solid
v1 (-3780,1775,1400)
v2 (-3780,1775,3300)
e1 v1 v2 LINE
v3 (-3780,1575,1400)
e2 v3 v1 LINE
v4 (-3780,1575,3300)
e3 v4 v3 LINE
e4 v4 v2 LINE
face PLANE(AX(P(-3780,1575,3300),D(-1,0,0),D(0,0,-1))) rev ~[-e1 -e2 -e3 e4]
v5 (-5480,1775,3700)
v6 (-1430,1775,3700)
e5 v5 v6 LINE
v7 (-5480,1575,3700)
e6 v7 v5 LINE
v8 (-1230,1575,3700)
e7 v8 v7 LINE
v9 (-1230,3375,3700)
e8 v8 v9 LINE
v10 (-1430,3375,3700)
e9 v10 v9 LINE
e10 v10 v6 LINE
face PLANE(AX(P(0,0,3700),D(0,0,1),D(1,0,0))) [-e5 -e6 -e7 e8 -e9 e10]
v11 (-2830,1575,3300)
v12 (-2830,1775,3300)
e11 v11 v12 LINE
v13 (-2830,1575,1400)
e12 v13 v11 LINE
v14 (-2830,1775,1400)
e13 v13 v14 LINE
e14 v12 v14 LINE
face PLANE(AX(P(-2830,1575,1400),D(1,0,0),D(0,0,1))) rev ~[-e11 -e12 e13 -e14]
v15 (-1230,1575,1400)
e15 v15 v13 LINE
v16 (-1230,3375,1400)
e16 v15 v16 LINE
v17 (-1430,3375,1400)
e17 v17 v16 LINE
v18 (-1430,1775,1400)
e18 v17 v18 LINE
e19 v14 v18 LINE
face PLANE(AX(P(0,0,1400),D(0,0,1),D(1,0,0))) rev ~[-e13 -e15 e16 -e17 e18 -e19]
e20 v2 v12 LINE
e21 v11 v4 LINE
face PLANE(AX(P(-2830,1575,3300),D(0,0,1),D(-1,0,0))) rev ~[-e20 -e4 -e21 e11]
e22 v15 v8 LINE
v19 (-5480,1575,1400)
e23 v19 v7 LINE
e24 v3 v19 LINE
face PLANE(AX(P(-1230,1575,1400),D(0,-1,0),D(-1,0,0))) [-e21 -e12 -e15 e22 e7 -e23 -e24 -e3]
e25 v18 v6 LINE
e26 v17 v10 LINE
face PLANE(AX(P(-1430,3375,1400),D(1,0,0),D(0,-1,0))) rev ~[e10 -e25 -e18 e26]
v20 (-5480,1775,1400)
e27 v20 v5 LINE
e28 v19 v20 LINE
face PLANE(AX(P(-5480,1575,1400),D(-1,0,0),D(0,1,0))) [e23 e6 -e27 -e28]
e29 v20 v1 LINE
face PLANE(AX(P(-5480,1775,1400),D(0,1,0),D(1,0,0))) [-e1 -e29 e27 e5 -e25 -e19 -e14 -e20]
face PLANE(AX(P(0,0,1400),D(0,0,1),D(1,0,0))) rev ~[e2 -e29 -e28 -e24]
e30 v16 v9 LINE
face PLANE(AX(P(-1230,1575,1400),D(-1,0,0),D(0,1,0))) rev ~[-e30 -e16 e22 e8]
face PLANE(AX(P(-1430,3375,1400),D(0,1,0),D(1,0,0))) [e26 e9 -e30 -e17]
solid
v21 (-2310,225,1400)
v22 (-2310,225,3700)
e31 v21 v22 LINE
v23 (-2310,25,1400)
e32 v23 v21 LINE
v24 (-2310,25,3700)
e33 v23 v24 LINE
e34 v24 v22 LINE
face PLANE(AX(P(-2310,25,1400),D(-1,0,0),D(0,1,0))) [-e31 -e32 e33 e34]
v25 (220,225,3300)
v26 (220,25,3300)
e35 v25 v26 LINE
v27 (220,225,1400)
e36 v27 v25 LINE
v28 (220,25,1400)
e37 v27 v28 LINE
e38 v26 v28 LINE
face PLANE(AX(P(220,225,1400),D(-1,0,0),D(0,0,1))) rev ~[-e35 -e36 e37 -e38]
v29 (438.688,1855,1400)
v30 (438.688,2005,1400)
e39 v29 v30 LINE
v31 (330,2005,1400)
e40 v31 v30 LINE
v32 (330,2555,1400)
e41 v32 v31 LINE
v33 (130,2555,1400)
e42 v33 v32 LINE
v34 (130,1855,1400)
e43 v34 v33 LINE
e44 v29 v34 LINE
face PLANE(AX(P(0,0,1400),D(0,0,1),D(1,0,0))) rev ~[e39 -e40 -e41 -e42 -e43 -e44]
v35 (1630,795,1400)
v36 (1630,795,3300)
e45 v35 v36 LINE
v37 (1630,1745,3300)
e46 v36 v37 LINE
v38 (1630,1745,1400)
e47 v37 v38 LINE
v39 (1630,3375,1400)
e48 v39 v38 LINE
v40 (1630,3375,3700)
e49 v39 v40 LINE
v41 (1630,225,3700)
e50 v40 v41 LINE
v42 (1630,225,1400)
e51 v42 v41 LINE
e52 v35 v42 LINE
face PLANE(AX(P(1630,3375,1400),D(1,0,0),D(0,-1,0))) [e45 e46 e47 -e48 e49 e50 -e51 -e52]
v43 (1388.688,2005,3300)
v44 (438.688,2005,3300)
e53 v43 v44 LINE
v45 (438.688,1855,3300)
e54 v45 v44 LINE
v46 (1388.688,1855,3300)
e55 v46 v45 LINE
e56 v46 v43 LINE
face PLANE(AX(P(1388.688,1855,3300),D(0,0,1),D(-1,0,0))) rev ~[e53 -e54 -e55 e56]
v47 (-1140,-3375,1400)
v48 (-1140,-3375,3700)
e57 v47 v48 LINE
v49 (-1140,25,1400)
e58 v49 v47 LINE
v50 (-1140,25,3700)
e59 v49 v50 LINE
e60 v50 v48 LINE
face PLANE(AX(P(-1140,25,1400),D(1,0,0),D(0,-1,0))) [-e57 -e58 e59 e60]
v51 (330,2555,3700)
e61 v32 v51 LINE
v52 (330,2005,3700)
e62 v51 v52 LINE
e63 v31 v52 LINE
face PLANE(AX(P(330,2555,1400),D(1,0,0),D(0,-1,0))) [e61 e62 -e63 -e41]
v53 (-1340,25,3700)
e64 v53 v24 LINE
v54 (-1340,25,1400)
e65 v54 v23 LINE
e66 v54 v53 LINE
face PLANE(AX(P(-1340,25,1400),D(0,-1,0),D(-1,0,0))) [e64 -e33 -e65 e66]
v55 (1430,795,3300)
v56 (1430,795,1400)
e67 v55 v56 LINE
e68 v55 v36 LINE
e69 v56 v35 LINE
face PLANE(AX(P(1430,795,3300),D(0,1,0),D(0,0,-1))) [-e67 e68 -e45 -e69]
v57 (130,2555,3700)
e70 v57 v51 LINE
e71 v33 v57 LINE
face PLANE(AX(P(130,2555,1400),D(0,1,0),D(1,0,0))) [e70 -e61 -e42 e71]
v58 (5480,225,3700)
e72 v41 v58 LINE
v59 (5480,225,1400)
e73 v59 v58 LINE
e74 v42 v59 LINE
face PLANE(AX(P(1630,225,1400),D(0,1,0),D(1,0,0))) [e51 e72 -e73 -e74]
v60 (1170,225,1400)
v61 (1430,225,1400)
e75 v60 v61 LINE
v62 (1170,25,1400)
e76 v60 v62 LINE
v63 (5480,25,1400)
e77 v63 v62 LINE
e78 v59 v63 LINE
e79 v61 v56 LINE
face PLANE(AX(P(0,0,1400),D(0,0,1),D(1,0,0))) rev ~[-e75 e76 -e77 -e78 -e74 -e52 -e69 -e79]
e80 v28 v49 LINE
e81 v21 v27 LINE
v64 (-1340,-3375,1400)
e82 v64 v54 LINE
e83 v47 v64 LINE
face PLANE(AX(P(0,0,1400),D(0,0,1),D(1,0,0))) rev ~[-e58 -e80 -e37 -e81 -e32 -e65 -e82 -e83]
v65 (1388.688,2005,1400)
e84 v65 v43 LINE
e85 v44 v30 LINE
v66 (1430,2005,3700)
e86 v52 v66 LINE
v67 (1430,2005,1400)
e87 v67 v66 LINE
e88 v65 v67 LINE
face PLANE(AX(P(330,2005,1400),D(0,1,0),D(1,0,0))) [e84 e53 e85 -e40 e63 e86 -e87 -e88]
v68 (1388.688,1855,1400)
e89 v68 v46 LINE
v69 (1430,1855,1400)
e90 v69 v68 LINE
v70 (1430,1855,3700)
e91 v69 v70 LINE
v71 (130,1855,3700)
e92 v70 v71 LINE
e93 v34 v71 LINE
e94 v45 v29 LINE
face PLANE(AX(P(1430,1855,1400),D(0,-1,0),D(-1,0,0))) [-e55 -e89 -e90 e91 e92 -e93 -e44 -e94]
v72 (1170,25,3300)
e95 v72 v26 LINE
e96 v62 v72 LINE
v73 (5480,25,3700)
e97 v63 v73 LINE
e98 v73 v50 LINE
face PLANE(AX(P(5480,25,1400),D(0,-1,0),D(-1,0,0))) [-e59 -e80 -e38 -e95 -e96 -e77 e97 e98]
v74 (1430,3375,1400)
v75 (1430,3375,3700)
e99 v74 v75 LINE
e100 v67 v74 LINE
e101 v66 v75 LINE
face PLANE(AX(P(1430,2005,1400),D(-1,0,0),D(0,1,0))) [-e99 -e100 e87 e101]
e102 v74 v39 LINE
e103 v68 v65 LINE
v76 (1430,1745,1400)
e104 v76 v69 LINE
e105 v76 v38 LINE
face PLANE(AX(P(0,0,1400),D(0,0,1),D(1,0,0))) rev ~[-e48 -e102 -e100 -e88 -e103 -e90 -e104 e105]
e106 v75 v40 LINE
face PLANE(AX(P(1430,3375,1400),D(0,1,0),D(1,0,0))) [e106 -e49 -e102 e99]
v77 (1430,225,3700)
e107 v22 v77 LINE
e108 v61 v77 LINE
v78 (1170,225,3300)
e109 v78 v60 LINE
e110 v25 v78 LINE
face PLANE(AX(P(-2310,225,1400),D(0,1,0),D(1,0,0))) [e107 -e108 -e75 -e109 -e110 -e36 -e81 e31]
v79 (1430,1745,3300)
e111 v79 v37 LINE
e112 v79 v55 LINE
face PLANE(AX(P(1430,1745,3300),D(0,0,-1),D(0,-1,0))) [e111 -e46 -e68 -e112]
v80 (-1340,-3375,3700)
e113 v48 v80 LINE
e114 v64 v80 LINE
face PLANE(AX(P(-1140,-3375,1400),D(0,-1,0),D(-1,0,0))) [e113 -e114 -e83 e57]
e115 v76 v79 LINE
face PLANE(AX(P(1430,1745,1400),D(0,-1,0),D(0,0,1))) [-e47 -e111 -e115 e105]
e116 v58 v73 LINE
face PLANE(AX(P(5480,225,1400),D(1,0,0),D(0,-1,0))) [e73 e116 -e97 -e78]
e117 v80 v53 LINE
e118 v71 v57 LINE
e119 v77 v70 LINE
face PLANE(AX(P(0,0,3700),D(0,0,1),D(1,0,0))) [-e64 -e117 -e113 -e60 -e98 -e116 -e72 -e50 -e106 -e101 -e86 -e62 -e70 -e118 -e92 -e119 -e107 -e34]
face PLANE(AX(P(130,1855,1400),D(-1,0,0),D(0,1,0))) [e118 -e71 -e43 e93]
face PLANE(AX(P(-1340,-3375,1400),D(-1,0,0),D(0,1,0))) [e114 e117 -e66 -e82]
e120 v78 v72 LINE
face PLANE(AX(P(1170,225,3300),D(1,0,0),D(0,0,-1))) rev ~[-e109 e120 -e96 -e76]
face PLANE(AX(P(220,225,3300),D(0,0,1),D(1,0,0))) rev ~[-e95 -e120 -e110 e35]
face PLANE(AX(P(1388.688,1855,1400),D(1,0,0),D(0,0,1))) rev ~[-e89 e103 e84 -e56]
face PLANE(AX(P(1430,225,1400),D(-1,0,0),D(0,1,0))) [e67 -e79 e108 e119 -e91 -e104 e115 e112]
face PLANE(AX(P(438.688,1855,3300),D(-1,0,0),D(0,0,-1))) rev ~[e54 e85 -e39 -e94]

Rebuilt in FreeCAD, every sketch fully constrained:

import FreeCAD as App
import Part
import Sketcher
from FreeCAD import Vector
Q = App.Units.Quantity

doc = App.newDocument("Part")
params = doc.addObject("Spreadsheet::Sheet", "Params")
for row, (alias, value) in enumerate([
    ("sketch1_width", "3850 mm"),
    ("sketch1_width2", "200 mm"),
    ("sketch1_width3", "1300 mm"),
    ("sketch1_width4", "970 mm"),
    ("sketch1_width5", "6620 mm"),
    ("pad1_length", "2300 mm"),
    ("sketch2_width", "950 mm"),
    ("sketch2_height", "1900 mm"),
    ("pocket1_length", "879.25 mm"),
    ("sketch3_width", "950 mm"),
    ("sketch3_height", "1900 mm"),
    ("pocket2_length", "879.25 mm"),
    ("sketch4_width", "950 mm"),
    ("sketch4_height", "1900 mm"),
    ("pocket3_length", "879.25 mm"),
    ("sketch5_width", "950 mm"),
    ("sketch5_height", "1900 mm"),
    ("pocket4_length", "150 mm"),
], start=1):
    params.set(f"A{row}", alias)
    params.set(f"B{row}", "=" + value)
    params.setAlias(f"B{row}", alias)

body = doc.addObject("PartDesign::Body", "Body")
body.AllowCompound = True

# Sketch on XY plane
sketch1 = doc.addObject("Sketcher::SketchObject", "Sketch")
body.addObject(sketch1)
sketch1.AttachmentSupport = (doc.XY_Plane, [""])
sketch1.MapMode = "FlatFace"
sketch1.AttachmentOffset = App.Placement(Vector(0, 0, 1400), App.Rotation())
sketch1.addGeometry([
    Part.LineSegment(Vector(5480, 25, 0), Vector(5480, 225, 0)),  # 0
    Part.LineSegment(Vector(5480, 225, 0), Vector(1630, 225, 0)),  # 1
    Part.LineSegment(Vector(1630, 225, 0), Vector(1630, 3375, 0)),  # 2
    Part.LineSegment(Vector(1630, 3375, 0), Vector(1430, 3375, 0)),  # 3
    Part.LineSegment(Vector(1430, 3375, 0), Vector(1430, 2005, 0)),  # 4
    Part.LineSegment(Vector(1430, 2005, 0), Vector(330, 2005, 0)),  # 5
    Part.LineSegment(Vector(330, 2005, 0), Vector(330, 2555, 0)),  # 6
    Part.LineSegment(Vector(330, 2555, 0), Vector(130, 2555, 0)),  # 7
    Part.LineSegment(Vector(130, 2555, 0), Vector(130, 1855, 0)),  # 8
    Part.LineSegment(Vector(130, 1855, 0), Vector(1430, 1855, 0)),  # 9
    Part.LineSegment(Vector(1430, 1855, 0), Vector(1430, 225, 0)),  # 10
    Part.LineSegment(Vector(1430, 225, 0), Vector(-2310, 225, 0)),  # 11
    Part.LineSegment(Vector(-2310, 225, 0), Vector(-2310, 25, 0)),  # 12
    Part.LineSegment(Vector(-2310, 25, 0), Vector(-1340, 25, 0)),  # 13
    Part.LineSegment(Vector(-1340, 25, 0), Vector(-1340, -3375, 0)),  # 14
    Part.LineSegment(Vector(-1340, -3375, 0), Vector(-1140, -3375, 0)),  # 15
    Part.LineSegment(Vector(-1140, -3375, 0), Vector(-1140, 25, 0)),  # 16
    Part.LineSegment(Vector(-1140, 25, 0), Vector(5480, 25, 0)),  # 17
    Part.LineSegment(Vector(-1230, 1575, 0), Vector(-1230, 3375, 0)),  # 18
    Part.LineSegment(Vector(-1230, 3375, 0), Vector(-1430, 3375, 0)),  # 19
    Part.LineSegment(Vector(-1430, 3375, 0), Vector(-1430, 1775, 0)),  # 20
    Part.LineSegment(Vector(-1430, 1775, 0), Vector(-5480, 1775, 0)),  # 21
    Part.LineSegment(Vector(-5480, 1775, 0), Vector(-5480, 1575, 0)),  # 22
    Part.LineSegment(Vector(-5480, 1575, 0), Vector(-1230, 1575, 0)),  # 23
], False)
sketch1.addConstraint([
    Sketcher.Constraint("Coincident", 0, 2, 1, 1),
    Sketcher.Constraint("Coincident", 1, 2, 2, 1),
    Sketcher.Constraint("Coincident", 2, 2, 3, 1),
    Sketcher.Constraint("Coincident", 3, 2, 4, 1),
    Sketcher.Constraint("Coincident", 4, 2, 5, 1),
    Sketcher.Constraint("Coincident", 5, 2, 6, 1),
    Sketcher.Constraint("Coincident", 6, 2, 7, 1),
    Sketcher.Constraint("Coincident", 7, 2, 8, 1),
    Sketcher.Constraint("Coincident", 8, 2, 9, 1),
    Sketcher.Constraint("Coincident", 9, 2, 10, 1),
    Sketcher.Constraint("Coincident", 10, 2, 11, 1),
    Sketcher.Constraint("Coincident", 11, 2, 12, 1),
    Sketcher.Constraint("Coincident", 12, 2, 13, 1),
    Sketcher.Constraint("Coincident", 13, 2, 14, 1),
    Sketcher.Constraint("Coincident", 14, 2, 15, 1),
    Sketcher.Constraint("Coincident", 15, 2, 16, 1),
    Sketcher.Constraint("Coincident", 16, 2, 17, 1),
    Sketcher.Constraint("Coincident", 17, 2, 0, 1),
    Sketcher.Constraint("Coincident", 18, 2, 19, 1),
    Sketcher.Constraint("Coincident", 19, 2, 20, 1),
    Sketcher.Constraint("Coincident", 20, 2, 21, 1),
    Sketcher.Constraint("Coincident", 21, 2, 22, 1),
    Sketcher.Constraint("Coincident", 22, 2, 23, 1),
    Sketcher.Constraint("Coincident", 23, 2, 18, 1),
    Sketcher.Constraint("Vertical", 0),
    Sketcher.Constraint("Horizontal", 1),
    Sketcher.Constraint("Vertical", 2),
    Sketcher.Constraint("Horizontal", 3),
    Sketcher.Constraint("Vertical", 4),
    Sketcher.Constraint("Horizontal", 5),
    Sketcher.Constraint("Vertical", 6),
    Sketcher.Constraint("Horizontal", 7),
    Sketcher.Constraint("Vertical", 8),
    Sketcher.Constraint("Horizontal", 9),
    Sketcher.Constraint("Vertical", 10),
    Sketcher.Constraint("Horizontal", 11),
    Sketcher.Constraint("Vertical", 12),
    Sketcher.Constraint("Horizontal", 13),
    Sketcher.Constraint("Vertical", 14),
    Sketcher.Constraint("Horizontal", 15),
    Sketcher.Constraint("Vertical", 16),
    Sketcher.Constraint("Horizontal", 17),
    Sketcher.Constraint("Vertical", 18),
    Sketcher.Constraint("Horizontal", 19),
    Sketcher.Constraint("Vertical", 20),
    Sketcher.Constraint("Horizontal", 21),
    Sketcher.Constraint("Vertical", 22),
    Sketcher.Constraint("Horizontal", 23),
    Sketcher.Constraint("Symmetric", 3, 2, 19, 2, -2),
    Sketcher.Constraint("Horizontal", 1, 2, 10, 2),
    Sketcher.Constraint("Horizontal", 13, 2, 16, 2),
    Sketcher.Constraint("Vertical", 4, 2, 9, 2),
    Sketcher.Constraint("Equal", 3, 7),
    Sketcher.Constraint("Equal", 7, 15),
    Sketcher.Constraint("Equal", 15, 19),
    Sketcher.Constraint("Equal", 19, 0),
    Sketcher.Constraint("Equal", 12, 22),
    Sketcher.Constraint("DistanceX", 1, 2, 1, 1, Q("3850 mm")),
    Sketcher.Constraint("DistanceX", 3, 2, 3, 1, Q("200 mm")),
    Sketcher.Constraint("DistanceX", 9, 1, 9, 2, Q("1300 mm")),
    Sketcher.Constraint("DistanceX", 13, 1, 13, 2, Q("970 mm")),
    Sketcher.Constraint("DistanceX", 17, 1, 17, 2, Q("6620 mm")),
    Sketcher.Constraint("DistanceX", 21, 2, 21, 1, Q("4050 mm")),
    Sketcher.Constraint("DistanceY", 8, 2, 8, 1, Q("700 mm")),
    Sketcher.Constraint("DistanceY", 10, 2, 10, 1, Q("1630 mm")),
    Sketcher.Constraint("DistanceY", 14, 2, 14, 1, Q("3400 mm")),
    Sketcher.Constraint("DistanceY", 20, 2, 20, 1, Q("1600 mm")),
    Sketcher.Constraint("DistanceX", -1, 1, 1, 2, Q("1630 mm")),
    Sketcher.Constraint("DistanceY", 8, 2, 5, 2, Q("150 mm")),
    Sketcher.Constraint("DistanceY", 2, 1, 2, 2, Q("3150 mm")),
    Sketcher.Constraint("DistanceY", -1, 1, 0, 2, Q("225 mm")),
])
sketch1.setExpression("Constraints[57]", "Params.sketch1_width")
sketch1.setExpression("Constraints[58]", "Params.sketch1_width2")
sketch1.setExpression("Constraints[59]", "Params.sketch1_width3")
sketch1.setExpression("Constraints[60]", "Params.sketch1_width4")
sketch1.setExpression("Constraints[61]", "Params.sketch1_width5")
pad1 = doc.addObject("PartDesign::Pad", "Pad")
body.addObject(pad1)
pad1.Profile = sketch1
pad1.setExpression("Length", "Params.pad1_length")

# Sketch on XZ plane
sketch2 = doc.addObject("Sketcher::SketchObject", "Sketch001")
body.addObject(sketch2)
sketch2.AttachmentSupport = (doc.XZ_Plane, [""])
sketch2.MapMode = "FlatFace"
sketch2.AttachmentOffset = App.Placement(Vector(0, 0, -1575), App.Rotation())
sketch2.addGeometry([
    Part.LineSegment(Vector(-3780, 3300, 0), Vector(-3780, 1400, 0)),
    Part.LineSegment(Vector(-3780, 1400, 0), Vector(-2830, 1400, 0)),
    Part.LineSegment(Vector(-2830, 1400, 0), Vector(-2830, 3300, 0)),
    Part.LineSegment(Vector(-2830, 3300, 0), Vector(-3780, 3300, 0)),
], False)
sketch2.addConstraint([
    Sketcher.Constraint("Coincident", 0, 2, 1, 1),
    Sketcher.Constraint("Coincident", 1, 2, 2, 1),
    Sketcher.Constraint("Coincident", 2, 2, 3, 1),
    Sketcher.Constraint("Coincident", 3, 2, 0, 1),
    Sketcher.Constraint("Vertical", 0),
    Sketcher.Constraint("Horizontal", 1),
    Sketcher.Constraint("Vertical", 2),
    Sketcher.Constraint("Horizontal", 3),
    Sketcher.Constraint("DistanceX", 1, 1, 1, 2, Q("950 mm")),
    Sketcher.Constraint("DistanceY", 0, 2, 0, 1, Q("1900 mm")),
    Sketcher.Constraint("DistanceX", 0, 2, -1, 1, Q("3780 mm")),
    Sketcher.Constraint("DistanceY", -1, 1, 0, 2, Q("1400 mm")),
])
sketch2.setExpression("Constraints[8]", "Params.sketch2_width")
sketch2.setExpression("Constraints[9]", "Params.sketch2_height")
pocket1 = doc.addObject("PartDesign::Pocket", "Pocket")
body.addObject(pocket1)
pocket1.Profile = sketch2
pocket1.setExpression("Length", "Params.pocket1_length")

# Sketch on YZ plane
sketch3 = doc.addObject("Sketcher::SketchObject", "Sketch002")
body.addObject(sketch3)
sketch3.AttachmentSupport = (doc.YZ_Plane, [""])
sketch3.MapMode = "FlatFace"
sketch3.AttachmentOffset = App.Placement(Vector(0, 0, 1430), App.Rotation())
sketch3.addGeometry([
    Part.LineSegment(Vector(1745, 1400, 0), Vector(795, 1400, 0)),
    Part.LineSegment(Vector(795, 1400, 0), Vector(795, 3300, 0)),
    Part.LineSegment(Vector(795, 3300, 0), Vector(1745, 3300, 0)),
    Part.LineSegment(Vector(1745, 3300, 0), Vector(1745, 1400, 0)),
], False)
sketch3.addConstraint([
    Sketcher.Constraint("Coincident", 0, 2, 1, 1),
    Sketcher.Constraint("Coincident", 1, 2, 2, 1),
    Sketcher.Constraint("Coincident", 2, 2, 3, 1),
    Sketcher.Constraint("Coincident", 3, 2, 0, 1),
    Sketcher.Constraint("Horizontal", 0),
    Sketcher.Constraint("Vertical", 1),
    Sketcher.Constraint("Horizontal", 2),
    Sketcher.Constraint("Vertical", 3),
    Sketcher.Constraint("DistanceX", 0, 2, 0, 1, Q("950 mm")),
    Sketcher.Constraint("DistanceY", 1, 1, 1, 2, Q("1900 mm")),
    Sketcher.Constraint("DistanceX", -1, 1, 0, 2, Q("795 mm")),
    Sketcher.Constraint("DistanceY", -1, 1, 0, 2, Q("1400 mm")),
])
sketch3.setExpression("Constraints[8]", "Params.sketch3_width")
sketch3.setExpression("Constraints[9]", "Params.sketch3_height")
pocket2 = doc.addObject("PartDesign::Pocket", "Pocket001")
body.addObject(pocket2)
pocket2.Profile = sketch3
pocket2.setExpression("Length", "Params.pocket2_length")
pocket2.Reversed = True

# Sketch on XZ plane
sketch4 = doc.addObject("Sketcher::SketchObject", "Sketch003")
body.addObject(sketch4)
sketch4.AttachmentSupport = (doc.XZ_Plane, [""])
sketch4.MapMode = "FlatFace"
sketch4.AttachmentOffset = App.Placement(Vector(0, 0, -225), App.Rotation())
sketch4.addGeometry([
    Part.LineSegment(Vector(1170, 1400, 0), Vector(220, 1400, 0)),
    Part.LineSegment(Vector(220, 1400, 0), Vector(220, 3300, 0)),
    Part.LineSegment(Vector(220, 3300, 0), Vector(1170, 3300, 0)),
    Part.LineSegment(Vector(1170, 3300, 0), Vector(1170, 1400, 0)),
], False)
sketch4.addConstraint([
    Sketcher.Constraint("Coincident", 0, 2, 1, 1),
    Sketcher.Constraint("Coincident", 1, 2, 2, 1),
    Sketcher.Constraint("Coincident", 2, 2, 3, 1),
    Sketcher.Constraint("Coincident", 3, 2, 0, 1),
    Sketcher.Constraint("Horizontal", 0),
    Sketcher.Constraint("Vertical", 1),
    Sketcher.Constraint("Horizontal", 2),
    Sketcher.Constraint("Vertical", 3),
    Sketcher.Constraint("DistanceX", 0, 2, 0, 1, Q("950 mm")),
    Sketcher.Constraint("DistanceY", 1, 1, 1, 2, Q("1900 mm")),
    Sketcher.Constraint("DistanceX", -1, 1, 0, 2, Q("220 mm")),
    Sketcher.Constraint("DistanceY", -1, 1, 0, 2, Q("1400 mm")),
])
sketch4.setExpression("Constraints[8]", "Params.sketch4_width")
sketch4.setExpression("Constraints[9]", "Params.sketch4_height")
pocket3 = doc.addObject("PartDesign::Pocket", "Pocket002")
body.addObject(pocket3)
pocket3.Profile = sketch4
pocket3.setExpression("Length", "Params.pocket3_length")
pocket3.Reversed = True

# Sketch on XZ plane
sketch5 = doc.addObject("Sketcher::SketchObject", "Sketch004")
body.addObject(sketch5)
sketch5.AttachmentSupport = (doc.XZ_Plane, [""])
sketch5.MapMode = "FlatFace"
sketch5.AttachmentOffset = App.Placement(Vector(0, 0, -1855), App.Rotation())
sketch5.addGeometry([
    Part.LineSegment(Vector(438.688, 1400, 0), Vector(1388.688, 1400, 0)),
    Part.LineSegment(Vector(1388.688, 1400, 0), Vector(1388.688, 3300, 0)),
    Part.LineSegment(Vector(1388.688, 3300, 0), Vector(438.688, 3300, 0)),
    Part.LineSegment(Vector(438.688, 3300, 0), Vector(438.688, 1400, 0)),
], False)
sketch5.addConstraint([
    Sketcher.Constraint("Coincident", 0, 2, 1, 1),
    Sketcher.Constraint("Coincident", 1, 2, 2, 1),
    Sketcher.Constraint("Coincident", 2, 2, 3, 1),
    Sketcher.Constraint("Coincident", 3, 2, 0, 1),
    Sketcher.Constraint("Horizontal", 0),
    Sketcher.Constraint("Vertical", 1),
    Sketcher.Constraint("Horizontal", 2),
    Sketcher.Constraint("Vertical", 3),
    Sketcher.Constraint("DistanceX", 0, 1, 0, 2, Q("950 mm")),
    Sketcher.Constraint("DistanceY", 1, 1, 1, 2, Q("1900 mm")),
    Sketcher.Constraint("DistanceY", -1, 1, 0, 2, Q("1400 mm")),
    Sketcher.Constraint("DistanceX", -1, 1, 0, 2, Q("1388.688 mm")),
])
sketch5.setExpression("Constraints[8]", "Params.sketch5_width")
sketch5.setExpression("Constraints[9]", "Params.sketch5_height")
pocket4 = doc.addObject("PartDesign::Pocket", "Pocket003")
body.addObject(pocket4)
pocket4.Profile = sketch5
pocket4.setExpression("Length", "Params.pocket4_length")

doc.recompute()
